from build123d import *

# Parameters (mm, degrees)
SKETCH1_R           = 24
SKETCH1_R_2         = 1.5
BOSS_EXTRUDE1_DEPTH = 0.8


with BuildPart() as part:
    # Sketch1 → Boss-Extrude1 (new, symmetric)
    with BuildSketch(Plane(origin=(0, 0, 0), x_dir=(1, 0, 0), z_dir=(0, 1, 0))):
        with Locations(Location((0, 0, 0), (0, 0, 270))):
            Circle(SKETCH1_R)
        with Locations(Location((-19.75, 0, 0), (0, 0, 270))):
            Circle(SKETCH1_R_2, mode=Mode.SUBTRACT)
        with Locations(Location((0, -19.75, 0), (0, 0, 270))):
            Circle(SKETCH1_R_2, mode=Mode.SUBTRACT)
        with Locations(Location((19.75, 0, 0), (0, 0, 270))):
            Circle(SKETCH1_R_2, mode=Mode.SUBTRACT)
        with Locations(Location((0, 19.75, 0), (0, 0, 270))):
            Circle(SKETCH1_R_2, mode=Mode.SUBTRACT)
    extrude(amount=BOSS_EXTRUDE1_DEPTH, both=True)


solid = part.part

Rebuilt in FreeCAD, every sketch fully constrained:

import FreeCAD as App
import Part
import Sketcher

doc = App.newDocument("Part")
params = doc.addObject("Spreadsheet::Sheet", "Params")
for row, (alias, value) in enumerate([
    ("sketch1_diameter", "48 mm"),
    ("sketch1_diameter2", "3 mm"),
    ("pad1_length", "1.6 mm"),
], start=1):
    params.set(f"A{row}", alias)
    params.set(f"B{row}", "=" + value)
    params.setAlias(f"B{row}", alias)

body = doc.addObject("PartDesign::Body", "Body")

# Sketch on XZ plane
sketch1 = body.newObject("Sketcher::SketchObject", "Sketch")
sketch1.AttachmentSupport = (doc.getObject("XZ_Plane"), [""])
sketch1.MapMode = "FlatFace"
sketch1.addGeometry(Part.Circle(App.Vector(0, 0, 0), App.Vector(0, 0, 1), 24), False)
sketch1.addGeometry(Part.Circle(App.Vector(0, -19.8, 0), App.Vector(0, 0, 1), 1.5), False)
sketch1.addGeometry(Part.Circle(App.Vector(-19.8, 0, 0), App.Vector(0, 0, 1), 1.5), False)
sketch1.addGeometry(Part.Circle(App.Vector(19.8, 0, 0), App.Vector(0, 0, 1), 1.5), False)
sketch1.addGeometry(Part.Circle(App.Vector(0, 19.8, 0), App.Vector(0, 0, 1), 1.5), False)
sketch1.addConstraint(Sketcher.Constraint("Coincident", 0, 3, -1, 1))
sketch1.addConstraint(Sketcher.Constraint("Equal", 1, 2))
sketch1.addConstraint(Sketcher.Constraint("Equal", 2, 3))
sketch1.addConstraint(Sketcher.Constraint("Equal", 3, 4))
sketch1.addConstraint(Sketcher.Constraint("Symmetric", 2, 3, 3, 3, -1, 1))
sketch1.addConstraint(Sketcher.Constraint("Symmetric", 1, 3, 4, 3, -1, 1))
sketch1.addConstraint(Sketcher.Constraint("PointOnObject", 1, 3, -2))
sketch1.addConstraint(Sketcher.Constraint("PointOnObject", 2, 3, -1))
sketch1.addConstraint(Sketcher.Constraint("Diameter", 0, 48.0))
sketch1.addConstraint(Sketcher.Constraint("Diameter", 1, 3.0))
sketch1.addConstraint(Sketcher.Constraint("DistanceX", 2, 3, 3, 3, 39.5))
sketch1.addConstraint(Sketcher.Constraint("DistanceY", 1, 3, 4, 3, 39.5))
sketch1.setExpression("Constraints[8]", "Params.sketch1_diameter")
sketch1.setExpression("Constraints[9]", "Params.sketch1_diameter2")
pad1 = body.newObject("PartDesign::Pad", "Pad")
pad1.Profile = sketch1
pad1.setExpression("Length", "Params.pad1_length")
pad1.Midplane = True

doc.recompute()
